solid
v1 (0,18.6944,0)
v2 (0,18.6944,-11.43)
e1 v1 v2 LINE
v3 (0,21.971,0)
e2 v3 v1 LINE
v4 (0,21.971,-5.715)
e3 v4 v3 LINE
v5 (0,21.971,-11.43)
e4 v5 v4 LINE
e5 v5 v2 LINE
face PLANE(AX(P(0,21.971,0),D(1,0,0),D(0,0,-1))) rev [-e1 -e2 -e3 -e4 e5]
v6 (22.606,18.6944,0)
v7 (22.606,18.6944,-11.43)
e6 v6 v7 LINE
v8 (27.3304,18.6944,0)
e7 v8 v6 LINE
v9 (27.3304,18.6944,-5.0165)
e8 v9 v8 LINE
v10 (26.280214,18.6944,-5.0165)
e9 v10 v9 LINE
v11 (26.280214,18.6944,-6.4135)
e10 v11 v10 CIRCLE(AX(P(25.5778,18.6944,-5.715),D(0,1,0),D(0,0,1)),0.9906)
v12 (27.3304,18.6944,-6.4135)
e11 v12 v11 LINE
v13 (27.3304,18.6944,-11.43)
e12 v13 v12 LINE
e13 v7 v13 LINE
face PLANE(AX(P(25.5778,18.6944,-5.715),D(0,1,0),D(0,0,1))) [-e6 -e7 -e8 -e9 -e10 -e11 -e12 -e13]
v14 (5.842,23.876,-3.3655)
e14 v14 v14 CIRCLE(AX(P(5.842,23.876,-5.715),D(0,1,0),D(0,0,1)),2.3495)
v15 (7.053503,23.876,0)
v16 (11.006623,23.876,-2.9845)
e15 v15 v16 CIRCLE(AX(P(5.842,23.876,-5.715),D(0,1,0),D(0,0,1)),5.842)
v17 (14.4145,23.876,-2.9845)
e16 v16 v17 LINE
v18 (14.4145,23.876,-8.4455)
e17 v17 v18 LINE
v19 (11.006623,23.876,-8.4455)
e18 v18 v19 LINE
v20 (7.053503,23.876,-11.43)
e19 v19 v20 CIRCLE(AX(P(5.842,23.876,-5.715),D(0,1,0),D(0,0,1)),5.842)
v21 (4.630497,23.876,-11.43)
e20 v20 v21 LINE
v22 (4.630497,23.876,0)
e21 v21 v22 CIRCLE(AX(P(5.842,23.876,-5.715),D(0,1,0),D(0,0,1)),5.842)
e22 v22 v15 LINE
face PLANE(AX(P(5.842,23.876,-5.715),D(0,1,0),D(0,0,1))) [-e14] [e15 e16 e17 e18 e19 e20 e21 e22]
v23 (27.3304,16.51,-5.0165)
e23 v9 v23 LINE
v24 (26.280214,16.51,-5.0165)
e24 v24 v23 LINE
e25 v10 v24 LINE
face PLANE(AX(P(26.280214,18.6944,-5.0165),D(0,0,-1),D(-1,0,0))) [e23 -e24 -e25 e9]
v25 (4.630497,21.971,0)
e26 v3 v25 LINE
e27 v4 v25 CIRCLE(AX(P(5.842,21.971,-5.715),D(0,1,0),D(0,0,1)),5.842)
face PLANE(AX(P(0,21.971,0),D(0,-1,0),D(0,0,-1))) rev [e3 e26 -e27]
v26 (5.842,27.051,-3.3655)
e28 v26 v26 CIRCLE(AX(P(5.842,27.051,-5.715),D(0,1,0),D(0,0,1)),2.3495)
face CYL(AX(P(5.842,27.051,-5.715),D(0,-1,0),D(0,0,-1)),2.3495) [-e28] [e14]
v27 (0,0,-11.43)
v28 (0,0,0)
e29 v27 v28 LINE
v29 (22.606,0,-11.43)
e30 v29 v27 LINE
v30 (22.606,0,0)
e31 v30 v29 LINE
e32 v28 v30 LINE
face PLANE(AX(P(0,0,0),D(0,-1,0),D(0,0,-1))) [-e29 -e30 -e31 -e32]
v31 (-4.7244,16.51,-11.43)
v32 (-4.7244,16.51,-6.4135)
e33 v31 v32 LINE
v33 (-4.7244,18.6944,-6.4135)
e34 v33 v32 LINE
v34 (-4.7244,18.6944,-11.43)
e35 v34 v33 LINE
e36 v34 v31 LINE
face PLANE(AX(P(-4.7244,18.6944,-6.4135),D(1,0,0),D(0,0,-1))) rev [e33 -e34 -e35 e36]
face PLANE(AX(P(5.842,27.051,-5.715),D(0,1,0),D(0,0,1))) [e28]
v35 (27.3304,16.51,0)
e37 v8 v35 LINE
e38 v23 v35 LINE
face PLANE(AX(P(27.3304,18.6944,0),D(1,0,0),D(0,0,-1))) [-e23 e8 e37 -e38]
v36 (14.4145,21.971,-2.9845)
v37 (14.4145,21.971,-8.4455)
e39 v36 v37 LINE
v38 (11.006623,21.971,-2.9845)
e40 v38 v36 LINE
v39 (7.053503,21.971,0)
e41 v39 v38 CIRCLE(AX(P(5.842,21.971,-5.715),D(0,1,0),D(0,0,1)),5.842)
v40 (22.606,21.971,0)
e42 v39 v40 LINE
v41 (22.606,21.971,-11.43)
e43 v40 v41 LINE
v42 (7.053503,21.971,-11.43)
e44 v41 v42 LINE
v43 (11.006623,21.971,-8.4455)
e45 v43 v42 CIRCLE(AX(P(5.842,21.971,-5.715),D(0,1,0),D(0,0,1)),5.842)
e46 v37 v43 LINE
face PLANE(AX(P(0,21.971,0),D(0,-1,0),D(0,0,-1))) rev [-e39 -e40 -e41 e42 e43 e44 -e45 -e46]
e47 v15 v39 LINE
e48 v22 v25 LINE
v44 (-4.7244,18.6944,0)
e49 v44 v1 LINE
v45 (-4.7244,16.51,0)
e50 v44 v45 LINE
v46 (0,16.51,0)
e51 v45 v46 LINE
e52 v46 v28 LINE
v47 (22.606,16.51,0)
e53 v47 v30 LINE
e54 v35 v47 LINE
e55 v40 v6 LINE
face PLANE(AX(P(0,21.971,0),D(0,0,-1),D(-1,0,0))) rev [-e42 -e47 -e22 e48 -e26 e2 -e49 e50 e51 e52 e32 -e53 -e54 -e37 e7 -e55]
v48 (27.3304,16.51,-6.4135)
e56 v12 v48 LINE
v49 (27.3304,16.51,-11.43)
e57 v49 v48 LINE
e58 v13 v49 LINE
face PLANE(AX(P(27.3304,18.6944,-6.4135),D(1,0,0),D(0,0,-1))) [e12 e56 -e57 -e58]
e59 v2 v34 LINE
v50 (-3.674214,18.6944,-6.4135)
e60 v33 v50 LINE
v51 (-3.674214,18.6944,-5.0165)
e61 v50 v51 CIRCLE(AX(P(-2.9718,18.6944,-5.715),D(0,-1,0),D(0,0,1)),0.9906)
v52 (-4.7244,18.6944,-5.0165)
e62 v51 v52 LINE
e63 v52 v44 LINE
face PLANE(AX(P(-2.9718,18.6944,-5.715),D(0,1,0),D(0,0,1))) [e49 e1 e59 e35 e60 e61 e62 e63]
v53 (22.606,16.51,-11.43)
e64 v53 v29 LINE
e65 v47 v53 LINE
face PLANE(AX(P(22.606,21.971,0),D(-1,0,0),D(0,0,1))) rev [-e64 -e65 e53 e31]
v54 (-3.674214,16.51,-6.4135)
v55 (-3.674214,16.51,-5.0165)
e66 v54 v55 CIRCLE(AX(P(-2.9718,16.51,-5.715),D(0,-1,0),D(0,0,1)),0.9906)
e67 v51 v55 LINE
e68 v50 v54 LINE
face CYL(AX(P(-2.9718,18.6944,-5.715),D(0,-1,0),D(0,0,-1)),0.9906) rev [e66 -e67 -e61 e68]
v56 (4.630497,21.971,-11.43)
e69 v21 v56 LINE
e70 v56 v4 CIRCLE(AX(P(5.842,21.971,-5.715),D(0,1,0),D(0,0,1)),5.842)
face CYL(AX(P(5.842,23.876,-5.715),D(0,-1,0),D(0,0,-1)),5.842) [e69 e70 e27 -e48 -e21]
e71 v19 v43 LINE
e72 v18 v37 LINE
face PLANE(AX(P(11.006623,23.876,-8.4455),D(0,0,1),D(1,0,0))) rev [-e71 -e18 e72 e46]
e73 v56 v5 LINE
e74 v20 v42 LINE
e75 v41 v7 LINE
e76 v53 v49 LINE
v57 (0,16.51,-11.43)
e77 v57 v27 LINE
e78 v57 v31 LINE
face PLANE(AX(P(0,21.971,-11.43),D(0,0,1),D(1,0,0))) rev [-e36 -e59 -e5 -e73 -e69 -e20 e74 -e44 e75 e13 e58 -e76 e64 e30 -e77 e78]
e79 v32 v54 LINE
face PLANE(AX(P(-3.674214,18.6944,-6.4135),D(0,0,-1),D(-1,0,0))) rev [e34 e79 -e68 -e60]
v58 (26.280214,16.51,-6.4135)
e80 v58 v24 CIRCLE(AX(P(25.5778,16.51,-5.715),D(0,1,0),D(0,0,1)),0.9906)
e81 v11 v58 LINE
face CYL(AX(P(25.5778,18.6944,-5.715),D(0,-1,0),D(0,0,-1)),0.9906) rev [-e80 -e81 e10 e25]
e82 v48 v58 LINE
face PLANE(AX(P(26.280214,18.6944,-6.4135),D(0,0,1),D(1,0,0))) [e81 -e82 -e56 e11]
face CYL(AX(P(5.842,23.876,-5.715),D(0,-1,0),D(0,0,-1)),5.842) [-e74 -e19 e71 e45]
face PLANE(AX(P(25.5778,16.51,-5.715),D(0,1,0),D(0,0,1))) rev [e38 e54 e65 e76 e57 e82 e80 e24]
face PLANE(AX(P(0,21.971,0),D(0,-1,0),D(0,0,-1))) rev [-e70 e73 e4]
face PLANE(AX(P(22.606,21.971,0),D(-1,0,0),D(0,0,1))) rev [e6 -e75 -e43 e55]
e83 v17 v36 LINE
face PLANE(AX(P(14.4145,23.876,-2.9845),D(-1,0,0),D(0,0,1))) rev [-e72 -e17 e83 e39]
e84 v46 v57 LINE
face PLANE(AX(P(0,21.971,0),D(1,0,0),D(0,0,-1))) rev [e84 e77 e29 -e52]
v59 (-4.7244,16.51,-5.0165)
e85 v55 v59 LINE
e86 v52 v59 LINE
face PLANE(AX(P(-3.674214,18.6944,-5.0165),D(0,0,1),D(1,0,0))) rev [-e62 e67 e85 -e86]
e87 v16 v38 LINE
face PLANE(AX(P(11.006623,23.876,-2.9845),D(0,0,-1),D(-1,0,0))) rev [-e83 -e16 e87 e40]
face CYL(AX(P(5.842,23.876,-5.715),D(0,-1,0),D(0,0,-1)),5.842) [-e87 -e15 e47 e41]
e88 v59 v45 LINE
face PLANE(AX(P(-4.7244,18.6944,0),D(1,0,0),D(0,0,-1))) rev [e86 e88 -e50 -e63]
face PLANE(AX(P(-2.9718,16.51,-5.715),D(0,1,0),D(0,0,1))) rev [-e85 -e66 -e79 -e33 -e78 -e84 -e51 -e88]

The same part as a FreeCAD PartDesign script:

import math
import FreeCAD as App
import Part
import Sketcher

V = App.Vector
Q = App.Units.Quantity


def add_polygon(sketch, points):
    """Adds a closed chain of lines whose ends are joined by coincident constraints."""
    first, n = sketch.GeometryCount, len(points)
    for a, b in zip(points, points[1:] + points[:1]):
        sketch.addGeometry(Part.LineSegment(App.Vector(*a, 0), App.Vector(*b, 0)), False)
    for i in range(n):
        sketch.addConstraint(Sketcher.Constraint("Coincident", first + i, 2, first + (i + 1) % n, 1))

doc = App.newDocument("Part")
params = doc.addObject("Spreadsheet::Sheet", "Params")
for row, (alias, value) in enumerate([
    ("sketch1_width", "0.89 in"),
    ("sketch1_height", "0.45 in"),
    ("pad1_length", "0.865 in"),
    ("sketch2_radius", "0.039 in"),
    ("sketch2_height", "0.45 in"),
    ("sketch2_width", "0.186 in"),
    ("pad2_length", "0.086 in"),
    ("sketch3_radius", "0.23 in"),
    ("sketch3_height", "0.215 in"),
    ("pad3_length", "0.075 in"),
    ("sketch4_diameter", "0.185 in"),
    ("pad4_length", "0.125 in"),
], start=1):
    params.set(f"A{row}", alias)
    params.set(f"B{row}", "=" + value)
    params.setAlias(f"B{row}", alias)

body = doc.addObject("PartDesign::Body", "Body")

# Sketch on XZ plane
sketch1 = doc.addObject("Sketcher::SketchObject", "Sketch")
body.addObject(sketch1)
sketch1.AttachmentSupport = (doc.XZ_Plane, [""])
sketch1.MapMode = "FlatFace"
add_polygon(sketch1, [(0, -11), (0, 0), (23, 0), (23, -11)])  # lines 0-3
sketch1.addConstraint(Sketcher.Constraint("Vertical", 0))
sketch1.addConstraint(Sketcher.Constraint("Horizontal", 1))
sketch1.addConstraint(Sketcher.Constraint("Vertical", 2))
sketch1.addConstraint(Sketcher.Constraint("Horizontal", 3))
sketch1.addConstraint(Sketcher.Constraint("Coincident", 0, 2, -1, 1))
sketch1.addConstraint(Sketcher.Constraint("DistanceX", 1, 1, 1, 2, Q("0.89 in")))
sketch1.addConstraint(Sketcher.Constraint("DistanceY", 0, 1, 0, 2, Q("0.45 in")))
sketch1.setExpression("Constraints[9]", "Params.sketch1_width")
sketch1.setExpression("Constraints[10]", "Params.sketch1_height")
pad1 = doc.addObject("PartDesign::Pad", "Pad")
body.addObject(pad1)
pad1.Profile = sketch1
pad1.setExpression("Length", "Params.pad1_length")
pad1.Reversed = True

# Sketch on XZ plane
sketch2 = doc.addObject("Sketcher::SketchObject", "Sketch001")
body.addObject(sketch2)
sketch2.AttachmentSupport = (doc.XZ_Plane, [""])
sketch2.MapMode = "FlatFace"
sketch2.AttachmentOffset = App.Placement(V(0, 0, -0.65 * 25.4), App.Rotation())
sketch2.addGeometry(Part.LineSegment(V(-4.7, 0, 0), V(0, 0, 0)), False)
sketch2.addGeometry(Part.LineSegment(V(0, 0, 0), V(0, -11.4, 0)), False)
sketch2.addGeometry(Part.LineSegment(V(0, -11.4, 0), V(-4.7, -11.4, 0)), False)
sketch2.addGeometry(Part.LineSegment(V(-4.7, -11.4, 0), V(-4.7, -6.4, 0)), False)
sketch2.addGeometry(Part.LineSegment(V(-4.7, -6.4, 0), V(-3.7, -6.4, 0)), False)
sketch2.addGeometry(Part.ArcOfCircle(Part.Circle(V(-3, -5.7, 0), V(0, 0, 1), 1), math.radians(-135), math.radians(135)), False)
sketch2.addGeometry(Part.LineSegment(V(-3.7, -5, 0), V(-4.7, -5, 0)), False)
sketch2.addGeometry(Part.LineSegment(V(-4.7, -5, 0), V(-4.7, 0, 0)), False)
sketch2.addConstraint(Sketcher.Constraint("Coincident", 0, 2, 1, 1))
sketch2.addConstraint(Sketcher.Constraint("Coincident", 1, 2, 2, 1))
sketch2.addConstraint(Sketcher.Constraint("Coincident", 2, 2, 3, 1))
sketch2.addConstraint(Sketcher.Constraint("Coincident", 3, 2, 4, 1))
sketch2.addConstraint(Sketcher.Constraint("Coincident", 4, 2, 5, 1))
sketch2.addConstraint(Sketcher.Constraint("Coincident", 5, 2, 6, 1))
sketch2.addConstraint(Sketcher.Constraint("Coincident", 6, 2, 7, 1))
sketch2.addConstraint(Sketcher.Constraint("Coincident", 7, 2, 0, 1))
sketch2.addConstraint(Sketcher.Constraint("Horizontal", 0))
sketch2.addConstraint(Sketcher.Constraint("Vertical", 1))
sketch2.addConstraint(Sketcher.Constraint("Horizontal", 2))
sketch2.addConstraint(Sketcher.Constraint("Vertical", 3))
sketch2.addConstraint(Sketcher.Constraint("Horizontal", 4))
sketch2.addConstraint(Sketcher.Constraint("Horizontal", 6))
sketch2.addConstraint(Sketcher.Constraint("Vertical", 7))
sketch2.addConstraint(Sketcher.Constraint("Coincident", 0, 2, -1, 1))
sketch2.addConstraint(Sketcher.Constraint("Vertical", 4, 2, 5, 2))
sketch2.addConstraint(Sketcher.Constraint("Vertical", 3, 2, 6, 2))
sketch2.addConstraint(Sketcher.Constraint("Equal", 3, 7))
sketch2.addConstraint(Sketcher.Constraint("Radius", 5, Q("0.039 in")))
sketch2.addConstraint(Sketcher.Constraint("DistanceY", 1, 2, 1, 1, Q("0.45 in")))
sketch2.addConstraint(Sketcher.Constraint("DistanceX", 0, 1, 0, 2, Q("0.186 in")))
sketch2.addConstraint(Sketcher.Constraint("DistanceY", 3, 1, 3, 2, Q("0.1975 in")))
sketch2.addConstraint(Sketcher.Constraint("DistanceX", 5, 3, -1, 1, Q("0.117 in")))
sketch2.setExpression("Constraints[19]", "Params.sketch2_radius")
sketch2.setExpression("Constraints[20]", "Params.sketch2_height")
sketch2.setExpression("Constraints[21]", "Params.sketch2_width")
pad2 = doc.addObject("PartDesign::Pad", "Pad001")
body.addObject(pad2)
pad2.Profile = sketch2
pad2.setExpression("Length", "Params.pad2_length")
pad2.Reversed = True

# Sketch on XZ plane
sketch3 = doc.addObject("Sketcher::SketchObject", "Sketch002")
body.addObject(sketch3)
sketch3.AttachmentSupport = (doc.XZ_Plane, [""])
sketch3.MapMode = "FlatFace"
sketch3.AttachmentOffset = App.Placement(V(0, 0, -0.865 * 25.4), App.Rotation())
sketch3.addGeometry(Part.LineSegment(V(7.1, -11.4, 0), V(4.6, -11.4, 0)), False)
sketch3.addGeometry(Part.ArcOfCircle(Part.Circle(V(5.8, -5.7, 0), V(0, 0, 1), 5.8), math.radians(102), math.radians(258)), False)
sketch3.addGeometry(Part.LineSegment(V(4.6, 0, 0), V(7.1, 0, 0)), False)
sketch3.addGeometry(Part.ArcOfCircle(Part.Circle(V(5.8, -5.7, 0), V(0, 0, 1), 5.8), math.radians(28), math.radians(78)), False)
sketch3.addGeometry(Part.LineSegment(V(11, -3, 0), V(14.4, -3, 0)), False)
sketch3.addGeometry(Part.LineSegment(V(14.4, -3, 0), V(14.4, -8.4, 0)), False)
sketch3.addGeometry(Part.LineSegment(V(14.4, -8.4, 0), V(11, -8.4, 0)), False)
sketch3.addGeometry(Part.ArcOfCircle(Part.Circle(V(5.8, -5.7, 0), V(0, 0, 1), 5.8), math.radians(-78), math.radians(-28)), False)
sketch3.addConstraint(Sketcher.Constraint("Coincident", 0, 2, 1, 2))
sketch3.addConstraint(Sketcher.Constraint("Coincident", 1, 1, 2, 1))
sketch3.addConstraint(Sketcher.Constraint("Coincident", 2, 2, 3, 2))
sketch3.addConstraint(Sketcher.Constraint("Coincident", 3, 1, 4, 1))
sketch3.addConstraint(Sketcher.Constraint("Coincident", 4, 2, 5, 1))
sketch3.addConstraint(Sketcher.Constraint("Coincident", 5, 2, 6, 1))
sketch3.addConstraint(Sketcher.Constraint("Coincident", 6, 2, 7, 2))
sketch3.addConstraint(Sketcher.Constraint("Coincident", 7, 1, 0, 1))
sketch3.addConstraint(Sketcher.Constraint("Horizontal", 0))
sketch3.addConstraint(Sketcher.Constraint("Horizontal", 2))
sketch3.addConstraint(Sketcher.Constraint("Horizontal", 4))
sketch3.addConstraint(Sketcher.Constraint("Vertical", 5))
sketch3.addConstraint(Sketcher.Constraint("Horizontal", 6))
sketch3.addConstraint(Sketcher.Constraint("Coincident", 3, 3, 1, 3))
sketch3.addConstraint(Sketcher.Constraint("Coincident", 7, 3, 1, 3))
sketch3.addConstraint(Sketcher.Constraint("Equal", 1, 3))
sketch3.addConstraint(Sketcher.Constraint("Equal", 3, 7))
sketch3.addConstraint(Sketcher.Constraint("PointOnObject", 1, 1, -1))
sketch3.addConstraint(Sketcher.Constraint("Vertical", 0, 2, 1, 1))
sketch3.addConstraint(Sketcher.Constraint("Vertical", 3, 1, 6, 2))
sketch3.addConstraint(Sketcher.Constraint("Radius", 1, Q("0.23 in")))
sketch3.addConstraint(Sketcher.Constraint("DistanceY", 5, 2, 5, 1, Q("0.215 in")))
sketch3.addConstraint(Sketcher.Constraint("DistanceX", -1, 1, 1, 3, Q("0.23 in")))
sketch3.addConstraint(Sketcher.Constraint("DistanceY", 0, 2, -1, 1, Q("0.45 in")))
sketch3.addConstraint(Sketcher.Constraint("DistanceX", -1, 1, 4, 2, Q("0.5675 in")))
sketch3.setExpression("Constraints[20]", "Params.sketch3_radius")
sketch3.setExpression("Constraints[21]", "Params.sketch3_height")
pad3 = doc.addObject("PartDesign::Pad", "Pad002")
body.addObject(pad3)
pad3.Profile = sketch3
pad3.setExpression("Length", "Params.pad3_length")
pad3.Reversed = True

# Sketch on XZ plane
sketch4 = doc.addObject("Sketcher::SketchObject", "Sketch003")
body.addObject(sketch4)
sketch4.AttachmentSupport = (doc.XZ_Plane, [""])
sketch4.MapMode = "FlatFace"
sketch4.AttachmentOffset = App.Placement(V(0, 0, -0.94 * 25.4), App.Rotation())
sketch4.addGeometry(Part.Circle(V(5.8, -5.7, 0), V(0, 0, 1), 2.3), False)
sketch4.addConstraint(Sketcher.Constraint("Diameter", 0, Q("0.185 in")))
sketch4.addConstraint(Sketcher.Constraint("DistanceX", -1, 1, 0, 3, Q("0.23 in")))
sketch4.addConstraint(Sketcher.Constraint("DistanceY", 0, 3, -1, 1, Q("0.225 in")))
sketch4.setExpression("Constraints[0]", "Params.sketch4_diameter")
pad4 = doc.addObject("PartDesign::Pad", "Pad003")
body.addObject(pad4)
pad4.Profile = sketch4
pad4.setExpression("Length", "Params.pad4_length")
pad4.Reversed = True
doc.recompute()

datumplane = doc.addObject("PartDesign::Plane", "DatumPlane")
body.addObject(datumplane)
datumplane.AttachmentSupport = (doc.YZ_Plane, [""])
datumplane.MapMode = "FlatFace"
datumplane.AttachmentOffset = App.Placement(V(0, 0, 0.445 * 25.4), App.Rotation())
mirrored = doc.addObject("PartDesign::Mirrored", "Mirrored")
body.addObject(mirrored)
mirrored.Originals = [pad2]
mirrored.MirrorPlane = (datumplane, [""])
body.Tip = mirrored

doc.recompute()
